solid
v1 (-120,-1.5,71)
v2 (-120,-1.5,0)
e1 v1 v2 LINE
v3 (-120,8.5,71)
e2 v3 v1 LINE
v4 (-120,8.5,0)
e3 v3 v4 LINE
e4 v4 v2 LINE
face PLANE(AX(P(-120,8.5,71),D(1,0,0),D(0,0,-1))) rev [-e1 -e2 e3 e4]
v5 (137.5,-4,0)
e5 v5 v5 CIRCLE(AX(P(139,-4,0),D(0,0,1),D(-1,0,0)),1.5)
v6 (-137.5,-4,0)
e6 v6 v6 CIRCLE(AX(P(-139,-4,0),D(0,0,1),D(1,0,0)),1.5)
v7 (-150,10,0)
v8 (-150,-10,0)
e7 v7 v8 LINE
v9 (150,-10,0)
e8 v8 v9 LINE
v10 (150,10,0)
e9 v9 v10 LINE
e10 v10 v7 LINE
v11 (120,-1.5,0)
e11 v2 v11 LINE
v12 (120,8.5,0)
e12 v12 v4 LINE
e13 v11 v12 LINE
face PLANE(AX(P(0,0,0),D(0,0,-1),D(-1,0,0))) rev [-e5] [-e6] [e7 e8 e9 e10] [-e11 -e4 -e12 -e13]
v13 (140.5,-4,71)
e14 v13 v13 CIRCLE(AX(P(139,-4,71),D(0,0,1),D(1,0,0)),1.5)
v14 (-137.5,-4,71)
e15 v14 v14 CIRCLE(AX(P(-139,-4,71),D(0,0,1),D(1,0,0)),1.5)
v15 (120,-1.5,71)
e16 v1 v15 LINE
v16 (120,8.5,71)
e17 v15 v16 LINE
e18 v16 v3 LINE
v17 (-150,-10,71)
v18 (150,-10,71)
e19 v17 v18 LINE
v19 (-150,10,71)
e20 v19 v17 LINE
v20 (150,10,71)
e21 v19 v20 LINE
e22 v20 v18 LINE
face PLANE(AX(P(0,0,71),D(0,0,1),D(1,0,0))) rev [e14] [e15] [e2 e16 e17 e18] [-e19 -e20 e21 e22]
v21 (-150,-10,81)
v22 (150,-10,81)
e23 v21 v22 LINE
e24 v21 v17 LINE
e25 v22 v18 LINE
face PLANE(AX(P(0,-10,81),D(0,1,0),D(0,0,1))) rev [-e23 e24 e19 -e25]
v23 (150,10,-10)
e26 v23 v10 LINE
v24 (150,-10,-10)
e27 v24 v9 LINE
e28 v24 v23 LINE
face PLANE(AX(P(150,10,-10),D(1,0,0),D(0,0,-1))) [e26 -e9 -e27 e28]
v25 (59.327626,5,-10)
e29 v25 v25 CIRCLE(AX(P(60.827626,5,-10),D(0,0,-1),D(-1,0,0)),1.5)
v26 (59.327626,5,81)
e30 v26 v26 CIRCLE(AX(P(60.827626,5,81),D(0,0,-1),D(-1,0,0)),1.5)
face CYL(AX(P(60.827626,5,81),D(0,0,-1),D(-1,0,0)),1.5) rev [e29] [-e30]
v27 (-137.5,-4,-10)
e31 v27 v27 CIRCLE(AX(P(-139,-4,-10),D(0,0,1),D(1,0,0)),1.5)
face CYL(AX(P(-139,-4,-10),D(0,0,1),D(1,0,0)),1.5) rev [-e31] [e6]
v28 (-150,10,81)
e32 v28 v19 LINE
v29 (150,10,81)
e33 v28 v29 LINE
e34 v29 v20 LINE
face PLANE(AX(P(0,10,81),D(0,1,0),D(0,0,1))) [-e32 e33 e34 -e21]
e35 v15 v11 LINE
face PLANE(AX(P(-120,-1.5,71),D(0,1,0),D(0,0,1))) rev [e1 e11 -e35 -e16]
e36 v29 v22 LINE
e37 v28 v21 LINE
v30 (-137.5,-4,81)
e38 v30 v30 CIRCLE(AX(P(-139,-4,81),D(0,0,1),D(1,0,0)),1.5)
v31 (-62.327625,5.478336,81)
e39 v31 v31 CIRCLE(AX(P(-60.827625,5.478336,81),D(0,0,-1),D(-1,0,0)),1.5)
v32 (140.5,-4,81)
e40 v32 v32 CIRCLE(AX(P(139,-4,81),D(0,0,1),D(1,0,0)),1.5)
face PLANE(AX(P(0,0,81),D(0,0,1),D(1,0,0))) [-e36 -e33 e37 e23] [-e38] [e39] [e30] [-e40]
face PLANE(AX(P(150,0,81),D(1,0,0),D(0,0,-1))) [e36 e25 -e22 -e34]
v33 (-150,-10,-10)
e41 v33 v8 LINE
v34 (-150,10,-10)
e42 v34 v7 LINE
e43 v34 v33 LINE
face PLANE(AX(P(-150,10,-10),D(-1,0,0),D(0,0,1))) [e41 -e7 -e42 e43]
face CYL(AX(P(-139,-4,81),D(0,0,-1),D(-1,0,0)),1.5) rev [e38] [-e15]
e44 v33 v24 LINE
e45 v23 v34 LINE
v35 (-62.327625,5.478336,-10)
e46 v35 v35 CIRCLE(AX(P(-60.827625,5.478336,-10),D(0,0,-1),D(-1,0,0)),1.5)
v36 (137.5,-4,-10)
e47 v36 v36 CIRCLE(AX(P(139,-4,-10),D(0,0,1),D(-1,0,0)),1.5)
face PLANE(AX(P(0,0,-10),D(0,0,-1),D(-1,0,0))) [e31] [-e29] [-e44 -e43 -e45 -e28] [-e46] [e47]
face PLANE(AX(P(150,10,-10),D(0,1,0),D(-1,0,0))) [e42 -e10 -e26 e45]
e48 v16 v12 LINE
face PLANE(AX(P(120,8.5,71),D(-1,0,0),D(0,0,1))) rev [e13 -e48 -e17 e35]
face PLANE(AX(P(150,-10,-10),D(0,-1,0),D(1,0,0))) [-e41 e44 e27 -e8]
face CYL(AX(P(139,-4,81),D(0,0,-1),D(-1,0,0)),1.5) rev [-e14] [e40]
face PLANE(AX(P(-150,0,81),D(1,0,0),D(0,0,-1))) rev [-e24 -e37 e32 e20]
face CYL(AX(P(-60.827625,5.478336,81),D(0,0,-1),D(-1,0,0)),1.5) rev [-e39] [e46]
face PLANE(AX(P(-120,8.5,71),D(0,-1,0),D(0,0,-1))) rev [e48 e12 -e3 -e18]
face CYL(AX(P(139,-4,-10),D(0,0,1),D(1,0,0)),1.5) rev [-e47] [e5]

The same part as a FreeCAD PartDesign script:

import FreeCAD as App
import Part
import Sketcher
from FreeCAD import Vector

doc = App.newDocument("Part")
params = doc.addObject("Spreadsheet::Sheet", "Params")
for row, (alias, value) in enumerate([
    ("sketch1_diameter", "3 mm"),
    ("sketch1_width", "300 mm"),
    ("sketch1_height", "20 mm"),
    ("pad1_length", "10 mm"),
    ("sketch2_width", "240 mm"),
    ("sketch2_height", "10 mm"),
    ("pad2_length", "71 mm"),
    ("sketch3_diameter", "3 mm"),
    ("sketch3_width", "300 mm"),
    ("sketch3_height", "20 mm"),
    ("pad3_length", "10 mm"),
    ("sketch4_diameter", "3 mm"),
], start=1):
    params.set(f"A{row}", alias)
    params.set(f"B{row}", "=" + value)
    params.setAlias(f"B{row}", alias)

body = doc.addObject("PartDesign::Body", "Body")

# Sketch on XY plane
sketch1 = doc.addObject("Sketcher::SketchObject", "Sketch")
body.addObject(sketch1)
sketch1.AttachmentSupport = (doc.XY_Plane, [""])
sketch1.MapMode = "FlatFace"
sketch1.addGeometry([
    Part.LineSegment(Vector(-150, 10, 0), Vector(-150, -10, 0)),  # 0
    Part.LineSegment(Vector(-150, -10, 0), Vector(150, -10, 0)),  # 1
    Part.LineSegment(Vector(150, -10, 0), Vector(150, 10, 0)),  # 2
    Part.LineSegment(Vector(150, 10, 0), Vector(-150, 10, 0)),  # 3
    Part.Circle(Vector(-139, -4, 0), Vector(0, 0, 1), 1.5),  # 4
    Part.Circle(Vector(139, -4, 0), Vector(0, 0, 1), 1.5),  # 5
], False)
sketch1.addConstraint([
    Sketcher.Constraint("Coincident", 0, 2, 1, 1),
    Sketcher.Constraint("Coincident", 1, 2, 2, 1),
    Sketcher.Constraint("Coincident", 2, 2, 3, 1),
    Sketcher.Constraint("Coincident", 3, 2, 0, 1),
    Sketcher.Constraint("Vertical", 0),
    Sketcher.Constraint("Horizontal", 1),
    Sketcher.Constraint("Vertical", 2),
    Sketcher.Constraint("Horizontal", 3),
    Sketcher.Constraint("Equal", 4, 5),
    Sketcher.Constraint("Symmetric", 0, 2, 2, 2, -1, 1),
    Sketcher.Constraint("Symmetric", 4, 3, 5, 3, -2),
    Sketcher.Constraint("Diameter", 4, 3.0),
    Sketcher.Constraint("DistanceX", 1, 1, 1, 2, 300.0),
    Sketcher.Constraint("DistanceY", 0, 2, 0, 1, 20.0),
    Sketcher.Constraint("DistanceX", 4, 3, -1, 1, 139.0),
    Sketcher.Constraint("DistanceY", 4, 3, -1, 1, 4.0),
])
sketch1.setExpression("Constraints[11]", "Params.sketch1_diameter")
sketch1.setExpression("Constraints[12]", "Params.sketch1_width")
sketch1.setExpression("Constraints[13]", "Params.sketch1_height")
pad1 = doc.addObject("PartDesign::Pad", "Pad")
body.addObject(pad1)
pad1.Profile = sketch1
pad1.setExpression("Length", "Params.pad1_length")
pad1.Reversed = True

# Sketch on XY plane
sketch2 = doc.addObject("Sketcher::SketchObject", "Sketch001")
body.addObject(sketch2)
sketch2.AttachmentSupport = (doc.XY_Plane, [""])
sketch2.MapMode = "FlatFace"
sketch2.addGeometry([
    Part.LineSegment(Vector(-120, 8, 0), Vector(-120, -2, 0)),
    Part.LineSegment(Vector(-120, -2, 0), Vector(120, -2, 0)),
    Part.LineSegment(Vector(120, -2, 0), Vector(120, 8, 0)),
    Part.LineSegment(Vector(120, 8, 0), Vector(-120, 8, 0)),
], False)
sketch2.addConstraint([
    Sketcher.Constraint("Coincident", 0, 2, 1, 1),
    Sketcher.Constraint("Coincident", 1, 2, 2, 1),
    Sketcher.Constraint("Coincident", 2, 2, 3, 1),
    Sketcher.Constraint("Coincident", 3, 2, 0, 1),
    Sketcher.Constraint("Vertical", 0),
    Sketcher.Constraint("Horizontal", 1),
    Sketcher.Constraint("Vertical", 2),
    Sketcher.Constraint("Horizontal", 3),
    Sketcher.Constraint("DistanceX", 1, 1, 1, 2, 240.0),
    Sketcher.Constraint("DistanceY", 0, 2, 0, 1, 10.0),
    Sketcher.Constraint("DistanceX", 0, 2, -1, 1, 120.0),
    Sketcher.Constraint("DistanceY", 0, 2, -1, 1, 1.5),
])
sketch2.setExpression("Constraints[8]", "Params.sketch2_width")
sketch2.setExpression("Constraints[9]", "Params.sketch2_height")
pad2 = doc.addObject("PartDesign::Pad", "Pad001")
body.addObject(pad2)
pad2.Profile = sketch2
pad2.setExpression("Length", "Params.pad2_length")

# Sketch on XY plane
sketch3 = doc.addObject("Sketcher::SketchObject", "Sketch002")
body.addObject(sketch3)
sketch3.AttachmentSupport = (doc.XY_Plane, [""])
sketch3.MapMode = "FlatFace"
sketch3.AttachmentOffset = App.Placement(Vector(0, 0, 81), App.Rotation())
sketch3.addGeometry([
    Part.LineSegment(Vector(-150, 10, 0), Vector(-150, -10, 0)),  # 0
    Part.LineSegment(Vector(-150, -10, 0), Vector(150, -10, 0)),  # 1
    Part.LineSegment(Vector(150, -10, 0), Vector(150, 10, 0)),  # 2
    Part.LineSegment(Vector(150, 10, 0), Vector(-150, 10, 0)),  # 3
    Part.Circle(Vector(-139, -4, 0), Vector(0, 0, 1), 1.5),  # 4
    Part.Circle(Vector(139, -4, 0), Vector(0, 0, 1), 1.5),  # 5
], False)
sketch3.addConstraint([
    Sketcher.Constraint("Coincident", 0, 2, 1, 1),
    Sketcher.Constraint("Coincident", 1, 2, 2, 1),
    Sketcher.Constraint("Coincident", 2, 2, 3, 1),
    Sketcher.Constraint("Coincident", 3, 2, 0, 1),
    Sketcher.Constraint("Vertical", 0),
    Sketcher.Constraint("Horizontal", 1),
    Sketcher.Constraint("Vertical", 2),
    Sketcher.Constraint("Horizontal", 3),
    Sketcher.Constraint("Equal", 4, 5),
    Sketcher.Constraint("Symmetric", 0, 2, 2, 2, -1, 1),
    Sketcher.Constraint("Symmetric", 4, 3, 5, 3, -2),
    Sketcher.Constraint("Diameter", 4, 3.0),
    Sketcher.Constraint("DistanceX", 1, 1, 1, 2, 300.0),
    Sketcher.Constraint("DistanceY", 0, 2, 0, 1, 20.0),
    Sketcher.Constraint("DistanceX", 4, 3, -1, 1, 139.0),
    Sketcher.Constraint("DistanceY", 4, 3, -1, 1, 4.0),
])
sketch3.setExpression("Constraints[11]", "Params.sketch3_diameter")
sketch3.setExpression("Constraints[12]", "Params.sketch3_width")
sketch3.setExpression("Constraints[13]", "Params.sketch3_height")
pad3 = doc.addObject("PartDesign::Pad", "Pad002")
body.addObject(pad3)
pad3.Profile = sketch3
pad3.setExpression("Length", "Params.pad3_length")
pad3.Reversed = True

# Sketch on XY plane
sketch4 = doc.addObject("Sketcher::SketchObject", "Sketch003")
body.addObject(sketch4)
sketch4.AttachmentSupport = (doc.XY_Plane, [""])
sketch4.MapMode = "FlatFace"
sketch4.AttachmentOffset = App.Placement(Vector(0, 0, -10), App.Rotation())
sketch4.addGeometry([
    Part.Circle(Vector(60.8, 5, 0), Vector(0, 0, 1), 1.5),
    Part.Circle(Vector(-60.8, 5.5, 0), Vector(0, 0, 1), 1.5),
], False)
sketch4.addConstraint([
    Sketcher.Constraint("Equal", 0, 1),
    Sketcher.Constraint("Diameter", 0, 3.0),
    Sketcher.Constraint("DistanceY", -1, 1, 0, 3, 5.0),
    Sketcher.Constraint("DistanceX", 1, 3, 0, 3, 121.655251),
    Sketcher.Constraint("DistanceX", -1, 1, 0, 3, 60.827626),
    Sketcher.Constraint("DistanceY", -1, 1, 1, 3, 5.478336),
])
sketch4.setExpression("Constraints[1]", "Params.sketch4_diameter")
pocket1 = doc.addObject("PartDesign::Pocket", "Pocket")
body.addObject(pocket1)
pocket1.Profile = sketch4
pocket1.Type = "ThroughAll"
pocket1.Reversed = True

doc.recompute()
